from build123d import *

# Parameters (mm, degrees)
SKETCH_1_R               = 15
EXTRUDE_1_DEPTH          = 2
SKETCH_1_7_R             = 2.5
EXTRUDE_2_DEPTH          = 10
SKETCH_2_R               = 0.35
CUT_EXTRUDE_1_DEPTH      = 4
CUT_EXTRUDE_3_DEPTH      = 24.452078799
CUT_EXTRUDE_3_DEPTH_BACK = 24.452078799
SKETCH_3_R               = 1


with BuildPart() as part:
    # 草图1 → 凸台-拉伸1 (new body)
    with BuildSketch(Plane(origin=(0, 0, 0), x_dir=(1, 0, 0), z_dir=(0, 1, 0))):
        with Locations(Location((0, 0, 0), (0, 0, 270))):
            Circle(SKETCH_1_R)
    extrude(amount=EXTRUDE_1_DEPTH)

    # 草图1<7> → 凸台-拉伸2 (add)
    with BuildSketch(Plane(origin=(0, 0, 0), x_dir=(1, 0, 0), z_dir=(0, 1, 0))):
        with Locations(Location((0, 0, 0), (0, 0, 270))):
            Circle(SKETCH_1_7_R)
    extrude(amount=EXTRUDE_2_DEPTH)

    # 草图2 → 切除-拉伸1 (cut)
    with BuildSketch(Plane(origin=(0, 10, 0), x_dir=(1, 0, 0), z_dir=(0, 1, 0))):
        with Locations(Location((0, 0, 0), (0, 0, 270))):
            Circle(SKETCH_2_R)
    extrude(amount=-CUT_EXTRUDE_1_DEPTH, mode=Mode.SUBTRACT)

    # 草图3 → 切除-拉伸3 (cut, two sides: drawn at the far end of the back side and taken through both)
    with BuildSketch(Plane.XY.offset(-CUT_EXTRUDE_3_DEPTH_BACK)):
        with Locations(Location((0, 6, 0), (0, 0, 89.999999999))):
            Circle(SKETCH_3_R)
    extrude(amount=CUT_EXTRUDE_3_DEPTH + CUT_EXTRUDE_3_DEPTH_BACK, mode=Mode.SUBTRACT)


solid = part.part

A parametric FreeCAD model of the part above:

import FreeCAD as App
import Part
import Sketcher

V = App.Vector
Q = App.Units.Quantity

doc = App.newDocument("Part")
body = doc.addObject("PartDesign::Body", "Body")

# Sketch on XZ plane
sketch1 = body.newObject("Sketcher::SketchObject", "Sketch")
sketch1.AttachmentSupport = (doc.getObject("XZ_Plane"), [""])
sketch1.MapMode = "FlatFace"
sketch1.addGeometry(Part.Circle(V(0, 0, 0), V(0, 0, 1), 15), False)
sketch1.addConstraint(Sketcher.Constraint("Coincident", 0, 3, -1, 1))
sketch1.addConstraint(Sketcher.Constraint("Diameter", 0, Q("30 mm")))
pad1 = body.newObject("PartDesign::Pad", "Pad")
pad1.Profile = sketch1
pad1.Length = 2
pad1.Reversed = True

# Sketch on XZ plane
sketch2 = body.newObject("Sketcher::SketchObject", "Sketch001")
sketch2.AttachmentSupport = (doc.getObject("XZ_Plane"), [""])
sketch2.MapMode = "FlatFace"
sketch2.addGeometry(Part.Circle(V(0, 0, 0), V(0, 0, 1), 2.5), False)
sketch2.addConstraint(Sketcher.Constraint("Coincident", 0, 3, -1, 1))
sketch2.addConstraint(Sketcher.Constraint("Diameter", 0, Q("5 mm")))
pad2 = body.newObject("PartDesign::Pad", "Pad001")
pad2.Profile = sketch2
pad2.Length = 10
pad2.Reversed = True

# Sketch on XZ plane
sketch3 = body.newObject("Sketcher::SketchObject", "Sketch002")
sketch3.AttachmentSupport = (doc.getObject("XZ_Plane"), [""])
sketch3.MapMode = "FlatFace"
sketch3.AttachmentOffset = App.Placement(V(0, 0, -10), App.Rotation())
sketch3.addGeometry(Part.Circle(V(0, 0, 0), V(0, 0, 1), 0.35), False)
sketch3.addConstraint(Sketcher.Constraint("Coincident", 0, 3, -1, 1))
sketch3.addConstraint(Sketcher.Constraint("Diameter", 0, Q("0.7 mm")))
pocket1 = body.newObject("PartDesign::Pocket", "Pocket")
pocket1.Profile = sketch3
pocket1.Length = 4
pocket1.Reversed = True

# Sketch on XY plane
sketch4 = body.newObject("Sketcher::SketchObject", "Sketch003")
sketch4.AttachmentSupport = (doc.getObject("XY_Plane"), [""])
sketch4.MapMode = "FlatFace"
sketch4.addGeometry(Part.Circle(V(0, 6, 0), V(0, 0, 1), 1), False)
sketch4.addConstraint(Sketcher.Constraint("PointOnObject", 0, 3, -2))
sketch4.addConstraint(Sketcher.Constraint("Diameter", 0, Q("2 mm")))
sketch4.addConstraint(Sketcher.Constraint("DistanceY", -1, 1, 0, 3, Q("6 mm")))
pocket2 = body.newObject("PartDesign::Pocket", "Pocket001")
pocket2.Profile = sketch4
pocket2.Type = "ThroughAll"
pocket2.Midplane = True

doc.recompute()
